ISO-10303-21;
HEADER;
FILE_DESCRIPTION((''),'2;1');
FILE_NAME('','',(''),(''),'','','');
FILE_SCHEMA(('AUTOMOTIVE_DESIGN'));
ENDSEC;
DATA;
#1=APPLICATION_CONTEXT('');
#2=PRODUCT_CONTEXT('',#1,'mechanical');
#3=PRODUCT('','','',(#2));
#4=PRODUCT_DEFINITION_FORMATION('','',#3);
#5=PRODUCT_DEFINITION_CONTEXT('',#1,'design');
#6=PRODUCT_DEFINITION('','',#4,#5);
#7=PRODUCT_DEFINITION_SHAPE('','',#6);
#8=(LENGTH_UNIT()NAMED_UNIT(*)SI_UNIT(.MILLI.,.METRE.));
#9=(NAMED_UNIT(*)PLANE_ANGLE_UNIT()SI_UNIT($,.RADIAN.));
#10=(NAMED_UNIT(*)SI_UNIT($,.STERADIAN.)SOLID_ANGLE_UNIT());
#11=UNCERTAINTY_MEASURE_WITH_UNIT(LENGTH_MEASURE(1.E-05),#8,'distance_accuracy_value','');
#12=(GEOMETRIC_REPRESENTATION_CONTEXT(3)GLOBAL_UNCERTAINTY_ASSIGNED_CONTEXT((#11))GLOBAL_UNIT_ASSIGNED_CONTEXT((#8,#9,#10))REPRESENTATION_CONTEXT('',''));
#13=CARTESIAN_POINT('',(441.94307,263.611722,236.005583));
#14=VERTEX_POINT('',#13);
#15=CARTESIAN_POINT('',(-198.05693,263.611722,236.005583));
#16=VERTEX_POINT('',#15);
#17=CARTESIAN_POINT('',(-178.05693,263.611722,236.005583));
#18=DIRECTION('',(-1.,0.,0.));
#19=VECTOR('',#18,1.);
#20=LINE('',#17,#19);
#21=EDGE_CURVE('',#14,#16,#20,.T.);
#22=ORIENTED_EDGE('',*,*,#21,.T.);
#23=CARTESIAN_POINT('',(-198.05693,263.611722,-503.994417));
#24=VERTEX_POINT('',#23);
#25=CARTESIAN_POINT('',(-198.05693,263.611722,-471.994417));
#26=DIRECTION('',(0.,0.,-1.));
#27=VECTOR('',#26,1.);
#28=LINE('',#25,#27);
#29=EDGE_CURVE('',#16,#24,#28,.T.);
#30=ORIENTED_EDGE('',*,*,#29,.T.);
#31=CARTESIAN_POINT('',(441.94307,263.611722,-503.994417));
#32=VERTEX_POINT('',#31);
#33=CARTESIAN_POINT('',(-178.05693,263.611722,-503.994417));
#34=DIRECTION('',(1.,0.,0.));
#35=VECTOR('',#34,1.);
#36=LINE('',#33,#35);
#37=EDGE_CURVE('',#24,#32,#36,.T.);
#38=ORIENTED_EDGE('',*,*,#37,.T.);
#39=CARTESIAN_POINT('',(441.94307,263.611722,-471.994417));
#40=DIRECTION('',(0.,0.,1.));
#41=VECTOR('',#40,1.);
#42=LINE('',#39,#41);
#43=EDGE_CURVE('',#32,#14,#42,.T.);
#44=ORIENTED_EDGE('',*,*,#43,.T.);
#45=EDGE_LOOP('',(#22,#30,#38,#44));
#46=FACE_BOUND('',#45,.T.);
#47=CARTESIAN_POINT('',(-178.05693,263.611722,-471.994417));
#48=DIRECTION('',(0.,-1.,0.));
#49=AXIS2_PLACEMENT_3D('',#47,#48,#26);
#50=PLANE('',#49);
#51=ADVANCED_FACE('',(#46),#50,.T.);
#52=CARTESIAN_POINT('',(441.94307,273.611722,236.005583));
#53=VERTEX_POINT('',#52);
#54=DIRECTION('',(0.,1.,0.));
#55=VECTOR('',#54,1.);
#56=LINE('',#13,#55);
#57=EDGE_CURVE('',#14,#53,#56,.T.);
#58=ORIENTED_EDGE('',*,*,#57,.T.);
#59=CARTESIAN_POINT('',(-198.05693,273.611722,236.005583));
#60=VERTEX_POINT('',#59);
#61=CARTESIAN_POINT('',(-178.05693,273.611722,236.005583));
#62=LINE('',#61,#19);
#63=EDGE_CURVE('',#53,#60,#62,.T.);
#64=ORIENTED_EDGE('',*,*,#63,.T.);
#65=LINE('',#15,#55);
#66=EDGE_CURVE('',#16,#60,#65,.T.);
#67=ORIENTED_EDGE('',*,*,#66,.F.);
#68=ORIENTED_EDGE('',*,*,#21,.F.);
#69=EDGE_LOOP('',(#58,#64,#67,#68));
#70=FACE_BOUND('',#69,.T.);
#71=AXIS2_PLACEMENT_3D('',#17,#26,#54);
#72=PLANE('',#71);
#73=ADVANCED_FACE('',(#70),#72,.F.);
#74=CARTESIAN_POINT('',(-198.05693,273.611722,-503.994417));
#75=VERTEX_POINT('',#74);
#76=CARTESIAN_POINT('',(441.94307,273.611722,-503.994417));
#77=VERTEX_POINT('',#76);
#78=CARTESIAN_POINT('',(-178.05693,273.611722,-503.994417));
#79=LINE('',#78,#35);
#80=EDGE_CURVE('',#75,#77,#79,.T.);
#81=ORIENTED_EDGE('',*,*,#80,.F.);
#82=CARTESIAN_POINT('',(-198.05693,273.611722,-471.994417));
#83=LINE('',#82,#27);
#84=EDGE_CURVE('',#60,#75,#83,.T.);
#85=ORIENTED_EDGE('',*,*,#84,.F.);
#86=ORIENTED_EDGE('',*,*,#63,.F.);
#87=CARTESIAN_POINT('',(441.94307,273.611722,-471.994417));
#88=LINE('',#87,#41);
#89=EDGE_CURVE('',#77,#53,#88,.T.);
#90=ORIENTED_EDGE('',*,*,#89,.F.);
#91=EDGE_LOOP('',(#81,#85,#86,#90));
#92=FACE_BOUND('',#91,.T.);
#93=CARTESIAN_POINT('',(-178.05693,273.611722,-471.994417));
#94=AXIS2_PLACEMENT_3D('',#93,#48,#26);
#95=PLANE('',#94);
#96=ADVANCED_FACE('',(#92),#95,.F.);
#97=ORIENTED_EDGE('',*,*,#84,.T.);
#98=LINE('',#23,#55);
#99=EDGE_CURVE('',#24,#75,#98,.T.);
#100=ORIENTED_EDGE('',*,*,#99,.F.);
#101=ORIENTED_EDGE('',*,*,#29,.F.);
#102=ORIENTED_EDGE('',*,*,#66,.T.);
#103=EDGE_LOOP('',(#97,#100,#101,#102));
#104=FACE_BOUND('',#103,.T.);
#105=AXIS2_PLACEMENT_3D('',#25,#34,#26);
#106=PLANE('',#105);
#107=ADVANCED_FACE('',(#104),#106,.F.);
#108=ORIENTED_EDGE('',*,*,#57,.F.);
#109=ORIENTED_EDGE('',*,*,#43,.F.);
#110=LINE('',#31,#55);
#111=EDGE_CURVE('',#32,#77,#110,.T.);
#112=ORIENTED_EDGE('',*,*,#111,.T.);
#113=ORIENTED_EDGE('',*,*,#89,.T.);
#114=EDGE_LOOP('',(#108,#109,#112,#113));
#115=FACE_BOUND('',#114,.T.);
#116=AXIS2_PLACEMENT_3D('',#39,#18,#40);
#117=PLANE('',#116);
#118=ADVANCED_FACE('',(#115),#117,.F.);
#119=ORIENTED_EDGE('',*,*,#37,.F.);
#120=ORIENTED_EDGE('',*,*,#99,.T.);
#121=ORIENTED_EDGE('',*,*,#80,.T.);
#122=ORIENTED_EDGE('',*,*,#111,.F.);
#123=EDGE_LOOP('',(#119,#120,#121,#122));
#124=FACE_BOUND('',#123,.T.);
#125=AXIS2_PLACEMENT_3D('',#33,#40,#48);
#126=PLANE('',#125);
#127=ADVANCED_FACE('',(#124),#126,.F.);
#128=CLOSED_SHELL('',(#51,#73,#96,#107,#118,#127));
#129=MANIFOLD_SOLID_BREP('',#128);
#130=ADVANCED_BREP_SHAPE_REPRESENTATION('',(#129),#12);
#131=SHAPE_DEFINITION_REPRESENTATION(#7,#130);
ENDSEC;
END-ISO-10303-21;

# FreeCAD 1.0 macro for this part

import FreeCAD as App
import Part
import Sketcher

V = App.Vector

doc = App.newDocument("Part")
body = doc.addObject("PartDesign::Body", "Body")

sketch1 = body.newObject("Sketcher::SketchObject", "Sketch")
sketch1.AttachmentSupport = (doc.getObject("XZ_Plane"), [""])
sketch1.MapMode = "FlatFace"
sketch1.AttachmentOffset = App.Placement(V(0, 0, -263.611722), App.Rotation())
sketch1.addGeometry([
    Part.LineSegment(V(-198, 236, 0), V(442, 236, 0)),
    Part.LineSegment(V(442, 236, 0), V(442, -504, 0)),
    Part.LineSegment(V(442, -504, 0), V(-198, -504, 0)),
    Part.LineSegment(V(-198, -504, 0), V(-198, 236, 0)),
], False)
sketch1.addConstraint([
    Sketcher.Constraint("Coincident", 0, 2, 1, 1),
    Sketcher.Constraint("Coincident", 1, 2, 2, 1),
    Sketcher.Constraint("Coincident", 2, 2, 3, 1),
    Sketcher.Constraint("Coincident", 3, 2, 0, 1),
    Sketcher.Constraint("Horizontal", 0),
    Sketcher.Constraint("Vertical", 1),
    Sketcher.Constraint("Horizontal", 2),
    Sketcher.Constraint("Vertical", 3),
    Sketcher.Constraint("DistanceX", 0, 1, 0, 2, 640.0),
    Sketcher.Constraint("DistanceY", 1, 2, 1, 1, 740.0),
    Sketcher.Constraint("DistanceX", -1, 1, 0, 2, 441.94307),
    Sketcher.Constraint("DistanceY", -1, 1, 0, 2, 236.005583),
])
pad1 = body.newObject("PartDesign::Pad", "Pad")
pad1.Profile = sketch1
pad1.Length = 10
pad1.Reversed = True

doc.recompute()
